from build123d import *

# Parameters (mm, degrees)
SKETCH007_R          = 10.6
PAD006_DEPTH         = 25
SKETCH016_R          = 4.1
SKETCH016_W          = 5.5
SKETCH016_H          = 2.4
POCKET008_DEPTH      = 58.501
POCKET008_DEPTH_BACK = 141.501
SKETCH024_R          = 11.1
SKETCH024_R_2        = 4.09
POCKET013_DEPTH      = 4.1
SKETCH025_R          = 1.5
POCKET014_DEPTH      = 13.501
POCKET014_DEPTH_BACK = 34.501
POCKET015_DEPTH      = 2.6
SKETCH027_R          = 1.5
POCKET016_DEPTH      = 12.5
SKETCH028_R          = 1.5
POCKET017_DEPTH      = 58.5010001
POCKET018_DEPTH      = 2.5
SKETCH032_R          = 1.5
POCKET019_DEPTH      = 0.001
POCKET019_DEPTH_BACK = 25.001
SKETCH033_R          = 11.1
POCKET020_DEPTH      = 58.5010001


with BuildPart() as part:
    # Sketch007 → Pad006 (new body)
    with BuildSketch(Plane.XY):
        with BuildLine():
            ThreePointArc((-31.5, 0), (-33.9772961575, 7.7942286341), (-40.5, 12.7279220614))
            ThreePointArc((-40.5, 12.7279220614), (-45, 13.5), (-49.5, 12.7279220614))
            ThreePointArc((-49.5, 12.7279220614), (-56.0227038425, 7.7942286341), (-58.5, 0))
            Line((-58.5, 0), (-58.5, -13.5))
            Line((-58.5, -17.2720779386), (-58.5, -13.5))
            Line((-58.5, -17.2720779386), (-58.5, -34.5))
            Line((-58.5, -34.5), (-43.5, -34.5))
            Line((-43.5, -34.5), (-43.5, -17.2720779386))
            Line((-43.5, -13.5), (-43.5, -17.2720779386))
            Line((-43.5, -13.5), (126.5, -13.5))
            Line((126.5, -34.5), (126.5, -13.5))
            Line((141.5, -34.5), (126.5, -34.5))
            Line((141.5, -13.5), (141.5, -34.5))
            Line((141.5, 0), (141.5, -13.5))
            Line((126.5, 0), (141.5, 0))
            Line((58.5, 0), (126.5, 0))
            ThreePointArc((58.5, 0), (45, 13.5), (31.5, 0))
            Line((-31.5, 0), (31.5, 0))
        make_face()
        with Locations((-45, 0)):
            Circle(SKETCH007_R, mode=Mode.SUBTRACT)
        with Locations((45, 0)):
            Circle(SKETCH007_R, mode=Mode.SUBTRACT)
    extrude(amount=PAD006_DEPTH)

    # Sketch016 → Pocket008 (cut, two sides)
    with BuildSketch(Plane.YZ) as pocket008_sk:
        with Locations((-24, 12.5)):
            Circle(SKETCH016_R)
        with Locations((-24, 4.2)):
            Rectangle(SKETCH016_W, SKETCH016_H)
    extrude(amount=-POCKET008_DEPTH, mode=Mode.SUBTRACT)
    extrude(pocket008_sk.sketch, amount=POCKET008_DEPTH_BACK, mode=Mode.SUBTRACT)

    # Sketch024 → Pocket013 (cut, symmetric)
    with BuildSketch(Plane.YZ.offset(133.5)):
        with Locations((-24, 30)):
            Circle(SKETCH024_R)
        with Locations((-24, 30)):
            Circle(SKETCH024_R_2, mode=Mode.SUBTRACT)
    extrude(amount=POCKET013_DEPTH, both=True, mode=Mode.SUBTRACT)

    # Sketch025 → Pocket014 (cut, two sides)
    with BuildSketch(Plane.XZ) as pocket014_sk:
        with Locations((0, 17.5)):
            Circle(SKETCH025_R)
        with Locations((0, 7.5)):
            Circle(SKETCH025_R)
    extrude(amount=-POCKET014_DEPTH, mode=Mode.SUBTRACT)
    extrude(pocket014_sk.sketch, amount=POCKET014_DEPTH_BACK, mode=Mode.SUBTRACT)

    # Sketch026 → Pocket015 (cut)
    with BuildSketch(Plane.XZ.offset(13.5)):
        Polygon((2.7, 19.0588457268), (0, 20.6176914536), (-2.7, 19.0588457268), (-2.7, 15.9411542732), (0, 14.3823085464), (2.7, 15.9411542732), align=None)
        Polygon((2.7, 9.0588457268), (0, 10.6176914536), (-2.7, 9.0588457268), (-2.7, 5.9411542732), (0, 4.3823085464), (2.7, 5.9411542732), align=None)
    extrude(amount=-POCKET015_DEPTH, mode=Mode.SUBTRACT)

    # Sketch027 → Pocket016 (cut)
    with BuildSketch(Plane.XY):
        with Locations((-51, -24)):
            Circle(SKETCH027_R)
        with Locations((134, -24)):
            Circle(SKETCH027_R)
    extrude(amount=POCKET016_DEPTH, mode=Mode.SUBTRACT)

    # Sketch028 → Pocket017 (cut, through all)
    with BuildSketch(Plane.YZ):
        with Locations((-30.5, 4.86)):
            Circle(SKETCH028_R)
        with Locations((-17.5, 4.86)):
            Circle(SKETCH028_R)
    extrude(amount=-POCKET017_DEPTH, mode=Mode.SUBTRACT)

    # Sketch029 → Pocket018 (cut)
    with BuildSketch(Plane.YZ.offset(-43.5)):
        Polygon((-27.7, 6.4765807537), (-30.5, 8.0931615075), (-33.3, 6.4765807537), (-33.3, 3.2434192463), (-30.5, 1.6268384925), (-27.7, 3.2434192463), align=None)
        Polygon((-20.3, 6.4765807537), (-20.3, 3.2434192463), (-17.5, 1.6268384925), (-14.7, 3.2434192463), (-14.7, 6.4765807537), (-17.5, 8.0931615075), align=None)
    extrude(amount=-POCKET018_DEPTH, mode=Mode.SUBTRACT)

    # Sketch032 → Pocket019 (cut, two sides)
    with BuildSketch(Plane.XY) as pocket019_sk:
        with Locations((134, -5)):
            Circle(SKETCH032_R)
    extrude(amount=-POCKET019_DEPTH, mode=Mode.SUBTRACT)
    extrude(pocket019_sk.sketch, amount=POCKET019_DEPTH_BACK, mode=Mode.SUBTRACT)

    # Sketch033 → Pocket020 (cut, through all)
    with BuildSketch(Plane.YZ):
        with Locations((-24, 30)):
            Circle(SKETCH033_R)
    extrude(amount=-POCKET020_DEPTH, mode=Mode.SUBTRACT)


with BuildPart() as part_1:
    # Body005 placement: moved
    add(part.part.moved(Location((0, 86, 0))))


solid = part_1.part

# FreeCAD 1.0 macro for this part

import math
import FreeCAD as App
import Part
import Sketcher
Q = App.Units.Quantity


def add_polygon(sketch, points):
    """Adds a closed chain of lines whose ends are joined by coincident constraints."""
    first, n = sketch.GeometryCount, len(points)
    for a, b in zip(points, points[1:] + points[:1]):
        sketch.addGeometry(Part.LineSegment(App.Vector(*a, 0), App.Vector(*b, 0)), False)
    for i in range(n):
        sketch.addConstraint(Sketcher.Constraint("Coincident", first + i, 2, first + (i + 1) % n, 1))

doc = App.newDocument("Part")
body = doc.addObject("PartDesign::Body", "Body")

sketch1 = body.newObject("Sketcher::SketchObject", "Sketch")
sketch1.AttachmentSupport = (doc.getObject("XY_Plane"), [""])
sketch1.MapMode = "FlatFace"
sketch1.addGeometry([
    Part.ArcOfCircle(Part.Circle(App.Vector(-45, 0, 0), App.Vector(0, 0, 1), 14), math.radians(0), math.radians(71)),
    Part.ArcOfCircle(Part.Circle(App.Vector(-45, 0, 0), App.Vector(0, 0, 1), 14), math.radians(71), math.radians(109)),
    Part.ArcOfCircle(Part.Circle(App.Vector(-45, 0, 0), App.Vector(0, 0, 1), 14), math.radians(109), math.radians(180)),
    Part.LineSegment(App.Vector(-58, 0, 0), App.Vector(-58, -34, 0)),
    Part.LineSegment(App.Vector(-58, -34, 0), App.Vector(-44, -34, 0)),
    Part.LineSegment(App.Vector(-44, -34, 0), App.Vector(-44, -14, 0)),
    Part.LineSegment(App.Vector(-44, -14, 0), App.Vector(126, -14, 0)),
    Part.LineSegment(App.Vector(126, -14, 0), App.Vector(126, -34, 0)),
    Part.LineSegment(App.Vector(126, -34, 0), App.Vector(142, -34, 0)),
    Part.LineSegment(App.Vector(142, -34, 0), App.Vector(142, 0, 0)),
    Part.LineSegment(App.Vector(142, 0, 0), App.Vector(58, 0, 0)),
    Part.ArcOfCircle(Part.Circle(App.Vector(45, 0, 0), App.Vector(0, 0, 1), 14), math.radians(0), math.radians(180)),
    Part.LineSegment(App.Vector(32, 0, 0), App.Vector(-32, 0, 0)),
    Part.Circle(App.Vector(-45, 0, 0), App.Vector(0, 0, 1), 11),
    Part.Circle(App.Vector(45, 0, 0), App.Vector(0, 0, 1), 11),
], False)
sketch1.addConstraint([
    Sketcher.Constraint("Tangent", 0, 2, 1, 1),
    Sketcher.Constraint("Tangent", 1, 2, 2, 1),
    Sketcher.Constraint("Tangent", 2, 2, 3, 1),
    Sketcher.Constraint("Coincident", 3, 2, 4, 1),
    Sketcher.Constraint("Coincident", 4, 2, 5, 1),
    Sketcher.Constraint("Coincident", 5, 2, 6, 1),
    Sketcher.Constraint("Coincident", 6, 2, 7, 1),
    Sketcher.Constraint("Coincident", 7, 2, 8, 1),
    Sketcher.Constraint("Coincident", 8, 2, 9, 1),
    Sketcher.Constraint("Coincident", 9, 2, 10, 1),
    Sketcher.Constraint("Coincident", 10, 2, 11, 1),
    Sketcher.Constraint("Coincident", 11, 2, 12, 1),
    Sketcher.Constraint("Coincident", 12, 2, 0, 1),
    Sketcher.Constraint("Vertical", 3),
    Sketcher.Constraint("Horizontal", 4),
    Sketcher.Constraint("Vertical", 5),
    Sketcher.Constraint("Horizontal", 6),
    Sketcher.Constraint("Vertical", 7),
    Sketcher.Constraint("Horizontal", 8),
    Sketcher.Constraint("Vertical", 9),
    Sketcher.Constraint("Horizontal", 10),
    Sketcher.Constraint("Horizontal", 12),
    Sketcher.Constraint("Coincident", 2, 3, 0, 3),
    Sketcher.Constraint("Coincident", 13, 3, 0, 3),
    Sketcher.Constraint("Coincident", 14, 3, 11, 3),
    Sketcher.Constraint("Equal", 2, 11),
    Sketcher.Constraint("Equal", 13, 14),
    Sketcher.Constraint("Symmetric", 0, 3, 11, 3, -1, 1),
    Sketcher.Constraint("PointOnObject", 0, 3, -1),
    Sketcher.Constraint("PointOnObject", 9, 2, -1),
    Sketcher.Constraint("PointOnObject", 11, 2, -1),
    Sketcher.Constraint("Horizontal", 0, 2, 1, 2),
    Sketcher.Constraint("Horizontal", 4, 2, 7, 2),
    Sketcher.Constraint("Equal", 4, 8),
    Sketcher.Constraint("Diameter", 13, Q("21.2 mm")),
    Sketcher.Constraint("Radius", 0, Q("13.5 mm")),
    Sketcher.Constraint("DistanceX", 4, 1, 4, 2, Q("15 mm")),
    Sketcher.Constraint("DistanceX", 6, 1, 6, 2, Q("170 mm")),
    Sketcher.Constraint("DistanceX", 10, 2, 10, 1, Q("83 mm")),
    Sketcher.Constraint("DistanceY", 5, 1, 5, 2, Q("21 mm")),
    Sketcher.Constraint("DistanceY", 3, 2, 3, 1, Q("34.5 mm")),
    Sketcher.Constraint("DistanceX", 1, 2, 0, 2, Q("9 mm")),
])
pad1 = body.newObject("PartDesign::Pad", "Pad")
pad1.Profile = sketch1
pad1.Length = 25

sketch2 = body.newObject("Sketcher::SketchObject", "Sketch001")
sketch2.AttachmentSupport = (doc.getObject("YZ_Plane"), [""])
sketch2.MapMode = "FlatFace"
sketch2.addGeometry(Part.Circle(App.Vector(-24, 12.5, 0), App.Vector(0, 0, 1), 4.1), False)
add_polygon(sketch2, [(-26.8, 5.4), (-26.8, 3), (-21.2, 3), (-21.2, 5.4)])
sketch2.addConstraint([
    Sketcher.Constraint("Vertical", 1),
    Sketcher.Constraint("Horizontal", 2),
    Sketcher.Constraint("Vertical", 3),
    Sketcher.Constraint("Horizontal", 4),
    Sketcher.Constraint("Diameter", 0, Q("8.2 mm")),
    Sketcher.Constraint("DistanceX", 2, 1, 2, 2, Q("5.5 mm")),
    Sketcher.Constraint("DistanceY", 1, 2, 1, 1, Q("2.4 mm")),
    Sketcher.Constraint("DistanceX", 0, 3, -1, 1, Q("24 mm")),
    Sketcher.Constraint("DistanceY", -1, 1, 1, 2, Q("3 mm")),
    Sketcher.Constraint("DistanceY", -1, 1, 0, 3, Q("12.5 mm")),
    Sketcher.Constraint("DistanceX", 1, 2, -1, 1, Q("26.75 mm")),
])
pocket1 = body.newObject("PartDesign::Pocket", "Pocket")
pocket1.Profile = sketch2
pocket1.Type = "ThroughAll"
pocket1.Midplane = True

sketch3 = body.newObject("Sketcher::SketchObject", "Sketch002")
sketch3.AttachmentSupport = (doc.getObject("YZ_Plane"), [""])
sketch3.MapMode = "FlatFace"
sketch3.AttachmentOffset = App.Placement(App.Vector(0, 0, 133.5), App.Rotation())
sketch3.addGeometry([
    Part.Circle(App.Vector(-24, 30, 0), App.Vector(0, 0, 1), 11.1),
    Part.Circle(App.Vector(-24, 30, 0), App.Vector(0, 0, 1), 4.1),
], False)
sketch3.addConstraint([
    Sketcher.Constraint("Coincident", 1, 3, 0, 3),
    Sketcher.Constraint("Diameter", 0, Q("22.2 mm")),
    Sketcher.Constraint("Diameter", 1, Q("8.18 mm")),
    Sketcher.Constraint("DistanceX", 0, 3, -1, 1, Q("24 mm")),
    Sketcher.Constraint("DistanceY", -1, 1, 0, 3, Q("30 mm")),
])
pocket2 = body.newObject("PartDesign::Pocket", "Pocket001")
pocket2.Profile = sketch3
pocket2.Length = 8.2
pocket2.Midplane = True

sketch4 = body.newObject("Sketcher::SketchObject", "Sketch003")
sketch4.AttachmentSupport = (doc.getObject("XZ_Plane"), [""])
sketch4.MapMode = "FlatFace"
sketch4.addGeometry([
    Part.Circle(App.Vector(0, 17.5, 0), App.Vector(0, 0, 1), 1.5),
    Part.Circle(App.Vector(0, 7.5, 0), App.Vector(0, 0, 1), 1.5),
], False)
sketch4.addConstraint([
    Sketcher.Constraint("Equal", 0, 1),
    Sketcher.Constraint("PointOnObject", 0, 3, -2),
    Sketcher.Constraint("PointOnObject", 1, 3, -2),
    Sketcher.Constraint("Diameter", 0, Q("3 mm")),
    Sketcher.Constraint("DistanceY", 1, 3, 0, 3, Q("10 mm")),
    Sketcher.Constraint("DistanceY", -1, 1, 0, 3, Q("17.5 mm")),
])
pocket3 = body.newObject("PartDesign::Pocket", "Pocket002")
pocket3.Profile = sketch4
pocket3.Type = "ThroughAll"
pocket3.Midplane = True

sketch5 = body.newObject("Sketcher::SketchObject", "Sketch004")
sketch5.AttachmentSupport = (doc.getObject("XZ_Plane"), [""])
sketch5.MapMode = "FlatFace"
sketch5.AttachmentOffset = App.Placement(App.Vector(0, 0, 13.5), App.Rotation())
add_polygon(sketch5, [(2.7, 19.1), (0, 20.6), (-2.7, 19.1), (-2.7, 15.9), (0, 14.4), (2.7, 15.9)])
add_polygon(sketch5, [(2.7, 9.1), (0, 10.6), (-2.7, 9.1), (-2.7, 5.9), (0, 4.4), (2.7, 5.9)])
sketch5.addConstraint([
    Sketcher.Constraint("Vertical", 2),
    Sketcher.Constraint("Vertical", 5),
    Sketcher.Constraint("Vertical", 8),
    Sketcher.Constraint("Vertical", 11),
    Sketcher.Constraint("Symmetric", 2, 2, 4, 2, -2),
    Sketcher.Constraint("Symmetric", 8, 2, 10, 2, -2),
    Sketcher.Constraint("PointOnObject", 0, 2, -2),
    Sketcher.Constraint("PointOnObject", 3, 2, -2),
    Sketcher.Constraint("PointOnObject", 6, 2, -2),
    Sketcher.Constraint("PointOnObject", 9, 2, -2),
    Sketcher.Constraint("Parallel", 0, 3),
    Sketcher.Constraint("Parallel", 1, 4),
    Sketcher.Constraint("Parallel", 3, 6),
    Sketcher.Constraint("Parallel", 4, 7),
    Sketcher.Constraint("Parallel", 6, 9),
    Sketcher.Constraint("Vertical", 2, 2, 7, 2),
    Sketcher.Constraint("Equal", 5, 8),
    Sketcher.Constraint("Angle", 0, Q("150 deg")),
    Sketcher.Constraint("DistanceY", 7, 2, 1, 2, Q("10 mm")),
    Sketcher.Constraint("DistanceX", 1, 2, -1, 1, Q("2.7 mm")),
    Sketcher.Constraint("DistanceY", 2, 2, 2, 1, Q("3.117691 mm")),
    Sketcher.Constraint("DistanceY", -1, 1, 0, 2, Q("20.617691 mm")),
])
pocket4 = body.newObject("PartDesign::Pocket", "Pocket003")
pocket4.Profile = sketch5
pocket4.Length = 2.6

sketch6 = body.newObject("Sketcher::SketchObject", "Sketch005")
sketch6.AttachmentSupport = (doc.getObject("XY_Plane"), [""])
sketch6.MapMode = "FlatFace"
sketch6.addGeometry([
    Part.Circle(App.Vector(-51, -24, 0), App.Vector(0, 0, 1), 1.5),
    Part.Circle(App.Vector(134, -24, 0), App.Vector(0, 0, 1), 1.5),
], False)
sketch6.addConstraint([
    Sketcher.Constraint("Equal", 0, 1),
    Sketcher.Constraint("Horizontal", 0, 3, 1, 3),
    Sketcher.Constraint("Diameter", 0, Q("3 mm")),
    Sketcher.Constraint("DistanceX", 0, 3, -1, 1, Q("51 mm")),
    Sketcher.Constraint("DistanceY", 0, 3, -1, 1, Q("24 mm")),
    Sketcher.Constraint("DistanceX", -1, 1, 1, 3, Q("134 mm")),
])
pocket5 = body.newObject("PartDesign::Pocket", "Pocket004")
pocket5.Profile = sketch6
pocket5.Length = 12.5
pocket5.Reversed = True

sketch7 = body.newObject("Sketcher::SketchObject", "Sketch006")
sketch7.AttachmentSupport = (doc.getObject("YZ_Plane"), [""])
sketch7.MapMode = "FlatFace"
sketch7.addGeometry([
    Part.Circle(App.Vector(-30.5, 4.9, 0), App.Vector(0, 0, 1), 1.5),
    Part.Circle(App.Vector(-17.5, 4.9, 0), App.Vector(0, 0, 1), 1.5),
], False)
sketch7.addConstraint([
    Sketcher.Constraint("Equal", 0, 1),
    Sketcher.Constraint("Horizontal", 0, 3, 1, 3),
    Sketcher.Constraint("Diameter", 0, Q("3 mm")),
    Sketcher.Constraint("DistanceX", 0, 3, 1, 3, Q("13 mm")),
    Sketcher.Constraint("DistanceX", 0, 3, -1, 1, Q("30.5 mm")),
    Sketcher.Constraint("DistanceY", -1, 1, 0, 3, Q("4.86 mm")),
])
pocket6 = body.newObject("PartDesign::Pocket", "Pocket005")
pocket6.Profile = sketch7
pocket6.Type = "ThroughAll"

sketch8 = body.newObject("Sketcher::SketchObject", "Sketch007")
sketch8.AttachmentSupport = (doc.getObject("YZ_Plane"), [""])
sketch8.MapMode = "FlatFace"
sketch8.AttachmentOffset = App.Placement(App.Vector(0, 0, -43.5), App.Rotation())
add_polygon(sketch8, [(-27.7, 6.5), (-30.5, 8.1), (-33.3, 6.5), (-33.3, 3.2), (-30.5, 1.6), (-27.7, 3.2)])
add_polygon(sketch8, [(-20.3, 6.5), (-20.3, 3.2), (-17.5, 1.6), (-14.7, 3.2), (-14.7, 6.5), (-17.5, 8.1)])
sketch8.addConstraint([
    Sketcher.Constraint("Vertical", 2),
    Sketcher.Constraint("Vertical", 5),
    Sketcher.Constraint("Vertical", 6),
    Sketcher.Constraint("Vertical", 9),
    Sketcher.Constraint("Parallel", 0, 3),
    Sketcher.Constraint("Parallel", 1, 4),
    Sketcher.Constraint("Parallel", 3, 7),
    Sketcher.Constraint("Parallel", 4, 8),
    Sketcher.Constraint("Parallel", 7, 10),
    Sketcher.Constraint("Parallel", 8, 11),
    Sketcher.Constraint("Horizontal", 2, 2, 4, 2),
    Sketcher.Constraint("Horizontal", 1, 2, 5, 2),
    Sketcher.Constraint("Horizontal", 4, 2, 6, 2),
    Sketcher.Constraint("Horizontal", 3, 2, 7, 2),
    Sketcher.Constraint("Horizontal", 6, 2, 8, 2),
    Sketcher.Constraint("Horizontal", 5, 2, 9, 2),
    Sketcher.Constraint("Horizontal", 0, 2, 10, 2),
    Sketcher.Constraint("Vertical", 0, 2, 3, 2),
    Sketcher.Constraint("Angle", 0, Q("150 deg")),
    Sketcher.Constraint("DistanceX", 2, 2, 6, 2, Q("13 mm")),
    Sketcher.Constraint("DistanceX", 0, 2, -1, 1, Q("30.5 mm")),
    Sketcher.Constraint("DistanceX", 1, 2, -1, 1, Q("33.3 mm")),
    Sketcher.Constraint("DistanceY", 2, 2, 2, 1, Q("3.233162 mm")),
    Sketcher.Constraint("DistanceY", -1, 1, 0, 2, Q("8.093162 mm")),
])
pocket7 = body.newObject("PartDesign::Pocket", "Pocket006")
pocket7.Profile = sketch8
pocket7.Length = 2.5

sketch9 = body.newObject("Sketcher::SketchObject", "Sketch008")
sketch9.AttachmentSupport = (doc.getObject("XY_Plane"), [""])
sketch9.MapMode = "FlatFace"
sketch9.addGeometry(Part.Circle(App.Vector(134, -5, 0), App.Vector(0, 0, 1), 1.5), False)
sketch9.addConstraint([
    Sketcher.Constraint("Diameter", 0, Q("3 mm")),
    Sketcher.Constraint("DistanceX", -1, 1, 0, 3, Q("134 mm")),
    Sketcher.Constraint("DistanceY", 0, 3, -1, 1, Q("5 mm")),
])
pocket8 = body.newObject("PartDesign::Pocket", "Pocket007")
pocket8.Profile = sketch9
pocket8.Type = "ThroughAll"
pocket8.Midplane = True

sketch10 = body.newObject("Sketcher::SketchObject", "Sketch009")
sketch10.AttachmentSupport = (doc.getObject("YZ_Plane"), [""])
sketch10.MapMode = "FlatFace"
sketch10.addGeometry(Part.Circle(App.Vector(-24, 30, 0), App.Vector(0, 0, 1), 11), False)
sketch10.addConstraint([
    Sketcher.Constraint("Diameter", 0, Q("22.2 mm")),
    Sketcher.Constraint("DistanceX", 0, 3, -1, 1, Q("24 mm")),
    Sketcher.Constraint("DistanceY", -1, 1, 0, 3, Q("30 mm")),
])
pocket9 = body.newObject("PartDesign::Pocket", "Pocket008")
pocket9.Profile = sketch10
pocket9.Type = "ThroughAll"
body2 = doc.addObject("PartDesign::Body", "Body001")
doc.recompute()

body.Placement = App.Placement(App.Vector(0, 86, 0), App.Rotation(App.Vector(0, 0, 1), 0))
boolean = body2.newObject("PartDesign::Boolean", "Boolean")
boolean.Type = "Fuse"
boolean.addObjects([body])

doc.recompute()
